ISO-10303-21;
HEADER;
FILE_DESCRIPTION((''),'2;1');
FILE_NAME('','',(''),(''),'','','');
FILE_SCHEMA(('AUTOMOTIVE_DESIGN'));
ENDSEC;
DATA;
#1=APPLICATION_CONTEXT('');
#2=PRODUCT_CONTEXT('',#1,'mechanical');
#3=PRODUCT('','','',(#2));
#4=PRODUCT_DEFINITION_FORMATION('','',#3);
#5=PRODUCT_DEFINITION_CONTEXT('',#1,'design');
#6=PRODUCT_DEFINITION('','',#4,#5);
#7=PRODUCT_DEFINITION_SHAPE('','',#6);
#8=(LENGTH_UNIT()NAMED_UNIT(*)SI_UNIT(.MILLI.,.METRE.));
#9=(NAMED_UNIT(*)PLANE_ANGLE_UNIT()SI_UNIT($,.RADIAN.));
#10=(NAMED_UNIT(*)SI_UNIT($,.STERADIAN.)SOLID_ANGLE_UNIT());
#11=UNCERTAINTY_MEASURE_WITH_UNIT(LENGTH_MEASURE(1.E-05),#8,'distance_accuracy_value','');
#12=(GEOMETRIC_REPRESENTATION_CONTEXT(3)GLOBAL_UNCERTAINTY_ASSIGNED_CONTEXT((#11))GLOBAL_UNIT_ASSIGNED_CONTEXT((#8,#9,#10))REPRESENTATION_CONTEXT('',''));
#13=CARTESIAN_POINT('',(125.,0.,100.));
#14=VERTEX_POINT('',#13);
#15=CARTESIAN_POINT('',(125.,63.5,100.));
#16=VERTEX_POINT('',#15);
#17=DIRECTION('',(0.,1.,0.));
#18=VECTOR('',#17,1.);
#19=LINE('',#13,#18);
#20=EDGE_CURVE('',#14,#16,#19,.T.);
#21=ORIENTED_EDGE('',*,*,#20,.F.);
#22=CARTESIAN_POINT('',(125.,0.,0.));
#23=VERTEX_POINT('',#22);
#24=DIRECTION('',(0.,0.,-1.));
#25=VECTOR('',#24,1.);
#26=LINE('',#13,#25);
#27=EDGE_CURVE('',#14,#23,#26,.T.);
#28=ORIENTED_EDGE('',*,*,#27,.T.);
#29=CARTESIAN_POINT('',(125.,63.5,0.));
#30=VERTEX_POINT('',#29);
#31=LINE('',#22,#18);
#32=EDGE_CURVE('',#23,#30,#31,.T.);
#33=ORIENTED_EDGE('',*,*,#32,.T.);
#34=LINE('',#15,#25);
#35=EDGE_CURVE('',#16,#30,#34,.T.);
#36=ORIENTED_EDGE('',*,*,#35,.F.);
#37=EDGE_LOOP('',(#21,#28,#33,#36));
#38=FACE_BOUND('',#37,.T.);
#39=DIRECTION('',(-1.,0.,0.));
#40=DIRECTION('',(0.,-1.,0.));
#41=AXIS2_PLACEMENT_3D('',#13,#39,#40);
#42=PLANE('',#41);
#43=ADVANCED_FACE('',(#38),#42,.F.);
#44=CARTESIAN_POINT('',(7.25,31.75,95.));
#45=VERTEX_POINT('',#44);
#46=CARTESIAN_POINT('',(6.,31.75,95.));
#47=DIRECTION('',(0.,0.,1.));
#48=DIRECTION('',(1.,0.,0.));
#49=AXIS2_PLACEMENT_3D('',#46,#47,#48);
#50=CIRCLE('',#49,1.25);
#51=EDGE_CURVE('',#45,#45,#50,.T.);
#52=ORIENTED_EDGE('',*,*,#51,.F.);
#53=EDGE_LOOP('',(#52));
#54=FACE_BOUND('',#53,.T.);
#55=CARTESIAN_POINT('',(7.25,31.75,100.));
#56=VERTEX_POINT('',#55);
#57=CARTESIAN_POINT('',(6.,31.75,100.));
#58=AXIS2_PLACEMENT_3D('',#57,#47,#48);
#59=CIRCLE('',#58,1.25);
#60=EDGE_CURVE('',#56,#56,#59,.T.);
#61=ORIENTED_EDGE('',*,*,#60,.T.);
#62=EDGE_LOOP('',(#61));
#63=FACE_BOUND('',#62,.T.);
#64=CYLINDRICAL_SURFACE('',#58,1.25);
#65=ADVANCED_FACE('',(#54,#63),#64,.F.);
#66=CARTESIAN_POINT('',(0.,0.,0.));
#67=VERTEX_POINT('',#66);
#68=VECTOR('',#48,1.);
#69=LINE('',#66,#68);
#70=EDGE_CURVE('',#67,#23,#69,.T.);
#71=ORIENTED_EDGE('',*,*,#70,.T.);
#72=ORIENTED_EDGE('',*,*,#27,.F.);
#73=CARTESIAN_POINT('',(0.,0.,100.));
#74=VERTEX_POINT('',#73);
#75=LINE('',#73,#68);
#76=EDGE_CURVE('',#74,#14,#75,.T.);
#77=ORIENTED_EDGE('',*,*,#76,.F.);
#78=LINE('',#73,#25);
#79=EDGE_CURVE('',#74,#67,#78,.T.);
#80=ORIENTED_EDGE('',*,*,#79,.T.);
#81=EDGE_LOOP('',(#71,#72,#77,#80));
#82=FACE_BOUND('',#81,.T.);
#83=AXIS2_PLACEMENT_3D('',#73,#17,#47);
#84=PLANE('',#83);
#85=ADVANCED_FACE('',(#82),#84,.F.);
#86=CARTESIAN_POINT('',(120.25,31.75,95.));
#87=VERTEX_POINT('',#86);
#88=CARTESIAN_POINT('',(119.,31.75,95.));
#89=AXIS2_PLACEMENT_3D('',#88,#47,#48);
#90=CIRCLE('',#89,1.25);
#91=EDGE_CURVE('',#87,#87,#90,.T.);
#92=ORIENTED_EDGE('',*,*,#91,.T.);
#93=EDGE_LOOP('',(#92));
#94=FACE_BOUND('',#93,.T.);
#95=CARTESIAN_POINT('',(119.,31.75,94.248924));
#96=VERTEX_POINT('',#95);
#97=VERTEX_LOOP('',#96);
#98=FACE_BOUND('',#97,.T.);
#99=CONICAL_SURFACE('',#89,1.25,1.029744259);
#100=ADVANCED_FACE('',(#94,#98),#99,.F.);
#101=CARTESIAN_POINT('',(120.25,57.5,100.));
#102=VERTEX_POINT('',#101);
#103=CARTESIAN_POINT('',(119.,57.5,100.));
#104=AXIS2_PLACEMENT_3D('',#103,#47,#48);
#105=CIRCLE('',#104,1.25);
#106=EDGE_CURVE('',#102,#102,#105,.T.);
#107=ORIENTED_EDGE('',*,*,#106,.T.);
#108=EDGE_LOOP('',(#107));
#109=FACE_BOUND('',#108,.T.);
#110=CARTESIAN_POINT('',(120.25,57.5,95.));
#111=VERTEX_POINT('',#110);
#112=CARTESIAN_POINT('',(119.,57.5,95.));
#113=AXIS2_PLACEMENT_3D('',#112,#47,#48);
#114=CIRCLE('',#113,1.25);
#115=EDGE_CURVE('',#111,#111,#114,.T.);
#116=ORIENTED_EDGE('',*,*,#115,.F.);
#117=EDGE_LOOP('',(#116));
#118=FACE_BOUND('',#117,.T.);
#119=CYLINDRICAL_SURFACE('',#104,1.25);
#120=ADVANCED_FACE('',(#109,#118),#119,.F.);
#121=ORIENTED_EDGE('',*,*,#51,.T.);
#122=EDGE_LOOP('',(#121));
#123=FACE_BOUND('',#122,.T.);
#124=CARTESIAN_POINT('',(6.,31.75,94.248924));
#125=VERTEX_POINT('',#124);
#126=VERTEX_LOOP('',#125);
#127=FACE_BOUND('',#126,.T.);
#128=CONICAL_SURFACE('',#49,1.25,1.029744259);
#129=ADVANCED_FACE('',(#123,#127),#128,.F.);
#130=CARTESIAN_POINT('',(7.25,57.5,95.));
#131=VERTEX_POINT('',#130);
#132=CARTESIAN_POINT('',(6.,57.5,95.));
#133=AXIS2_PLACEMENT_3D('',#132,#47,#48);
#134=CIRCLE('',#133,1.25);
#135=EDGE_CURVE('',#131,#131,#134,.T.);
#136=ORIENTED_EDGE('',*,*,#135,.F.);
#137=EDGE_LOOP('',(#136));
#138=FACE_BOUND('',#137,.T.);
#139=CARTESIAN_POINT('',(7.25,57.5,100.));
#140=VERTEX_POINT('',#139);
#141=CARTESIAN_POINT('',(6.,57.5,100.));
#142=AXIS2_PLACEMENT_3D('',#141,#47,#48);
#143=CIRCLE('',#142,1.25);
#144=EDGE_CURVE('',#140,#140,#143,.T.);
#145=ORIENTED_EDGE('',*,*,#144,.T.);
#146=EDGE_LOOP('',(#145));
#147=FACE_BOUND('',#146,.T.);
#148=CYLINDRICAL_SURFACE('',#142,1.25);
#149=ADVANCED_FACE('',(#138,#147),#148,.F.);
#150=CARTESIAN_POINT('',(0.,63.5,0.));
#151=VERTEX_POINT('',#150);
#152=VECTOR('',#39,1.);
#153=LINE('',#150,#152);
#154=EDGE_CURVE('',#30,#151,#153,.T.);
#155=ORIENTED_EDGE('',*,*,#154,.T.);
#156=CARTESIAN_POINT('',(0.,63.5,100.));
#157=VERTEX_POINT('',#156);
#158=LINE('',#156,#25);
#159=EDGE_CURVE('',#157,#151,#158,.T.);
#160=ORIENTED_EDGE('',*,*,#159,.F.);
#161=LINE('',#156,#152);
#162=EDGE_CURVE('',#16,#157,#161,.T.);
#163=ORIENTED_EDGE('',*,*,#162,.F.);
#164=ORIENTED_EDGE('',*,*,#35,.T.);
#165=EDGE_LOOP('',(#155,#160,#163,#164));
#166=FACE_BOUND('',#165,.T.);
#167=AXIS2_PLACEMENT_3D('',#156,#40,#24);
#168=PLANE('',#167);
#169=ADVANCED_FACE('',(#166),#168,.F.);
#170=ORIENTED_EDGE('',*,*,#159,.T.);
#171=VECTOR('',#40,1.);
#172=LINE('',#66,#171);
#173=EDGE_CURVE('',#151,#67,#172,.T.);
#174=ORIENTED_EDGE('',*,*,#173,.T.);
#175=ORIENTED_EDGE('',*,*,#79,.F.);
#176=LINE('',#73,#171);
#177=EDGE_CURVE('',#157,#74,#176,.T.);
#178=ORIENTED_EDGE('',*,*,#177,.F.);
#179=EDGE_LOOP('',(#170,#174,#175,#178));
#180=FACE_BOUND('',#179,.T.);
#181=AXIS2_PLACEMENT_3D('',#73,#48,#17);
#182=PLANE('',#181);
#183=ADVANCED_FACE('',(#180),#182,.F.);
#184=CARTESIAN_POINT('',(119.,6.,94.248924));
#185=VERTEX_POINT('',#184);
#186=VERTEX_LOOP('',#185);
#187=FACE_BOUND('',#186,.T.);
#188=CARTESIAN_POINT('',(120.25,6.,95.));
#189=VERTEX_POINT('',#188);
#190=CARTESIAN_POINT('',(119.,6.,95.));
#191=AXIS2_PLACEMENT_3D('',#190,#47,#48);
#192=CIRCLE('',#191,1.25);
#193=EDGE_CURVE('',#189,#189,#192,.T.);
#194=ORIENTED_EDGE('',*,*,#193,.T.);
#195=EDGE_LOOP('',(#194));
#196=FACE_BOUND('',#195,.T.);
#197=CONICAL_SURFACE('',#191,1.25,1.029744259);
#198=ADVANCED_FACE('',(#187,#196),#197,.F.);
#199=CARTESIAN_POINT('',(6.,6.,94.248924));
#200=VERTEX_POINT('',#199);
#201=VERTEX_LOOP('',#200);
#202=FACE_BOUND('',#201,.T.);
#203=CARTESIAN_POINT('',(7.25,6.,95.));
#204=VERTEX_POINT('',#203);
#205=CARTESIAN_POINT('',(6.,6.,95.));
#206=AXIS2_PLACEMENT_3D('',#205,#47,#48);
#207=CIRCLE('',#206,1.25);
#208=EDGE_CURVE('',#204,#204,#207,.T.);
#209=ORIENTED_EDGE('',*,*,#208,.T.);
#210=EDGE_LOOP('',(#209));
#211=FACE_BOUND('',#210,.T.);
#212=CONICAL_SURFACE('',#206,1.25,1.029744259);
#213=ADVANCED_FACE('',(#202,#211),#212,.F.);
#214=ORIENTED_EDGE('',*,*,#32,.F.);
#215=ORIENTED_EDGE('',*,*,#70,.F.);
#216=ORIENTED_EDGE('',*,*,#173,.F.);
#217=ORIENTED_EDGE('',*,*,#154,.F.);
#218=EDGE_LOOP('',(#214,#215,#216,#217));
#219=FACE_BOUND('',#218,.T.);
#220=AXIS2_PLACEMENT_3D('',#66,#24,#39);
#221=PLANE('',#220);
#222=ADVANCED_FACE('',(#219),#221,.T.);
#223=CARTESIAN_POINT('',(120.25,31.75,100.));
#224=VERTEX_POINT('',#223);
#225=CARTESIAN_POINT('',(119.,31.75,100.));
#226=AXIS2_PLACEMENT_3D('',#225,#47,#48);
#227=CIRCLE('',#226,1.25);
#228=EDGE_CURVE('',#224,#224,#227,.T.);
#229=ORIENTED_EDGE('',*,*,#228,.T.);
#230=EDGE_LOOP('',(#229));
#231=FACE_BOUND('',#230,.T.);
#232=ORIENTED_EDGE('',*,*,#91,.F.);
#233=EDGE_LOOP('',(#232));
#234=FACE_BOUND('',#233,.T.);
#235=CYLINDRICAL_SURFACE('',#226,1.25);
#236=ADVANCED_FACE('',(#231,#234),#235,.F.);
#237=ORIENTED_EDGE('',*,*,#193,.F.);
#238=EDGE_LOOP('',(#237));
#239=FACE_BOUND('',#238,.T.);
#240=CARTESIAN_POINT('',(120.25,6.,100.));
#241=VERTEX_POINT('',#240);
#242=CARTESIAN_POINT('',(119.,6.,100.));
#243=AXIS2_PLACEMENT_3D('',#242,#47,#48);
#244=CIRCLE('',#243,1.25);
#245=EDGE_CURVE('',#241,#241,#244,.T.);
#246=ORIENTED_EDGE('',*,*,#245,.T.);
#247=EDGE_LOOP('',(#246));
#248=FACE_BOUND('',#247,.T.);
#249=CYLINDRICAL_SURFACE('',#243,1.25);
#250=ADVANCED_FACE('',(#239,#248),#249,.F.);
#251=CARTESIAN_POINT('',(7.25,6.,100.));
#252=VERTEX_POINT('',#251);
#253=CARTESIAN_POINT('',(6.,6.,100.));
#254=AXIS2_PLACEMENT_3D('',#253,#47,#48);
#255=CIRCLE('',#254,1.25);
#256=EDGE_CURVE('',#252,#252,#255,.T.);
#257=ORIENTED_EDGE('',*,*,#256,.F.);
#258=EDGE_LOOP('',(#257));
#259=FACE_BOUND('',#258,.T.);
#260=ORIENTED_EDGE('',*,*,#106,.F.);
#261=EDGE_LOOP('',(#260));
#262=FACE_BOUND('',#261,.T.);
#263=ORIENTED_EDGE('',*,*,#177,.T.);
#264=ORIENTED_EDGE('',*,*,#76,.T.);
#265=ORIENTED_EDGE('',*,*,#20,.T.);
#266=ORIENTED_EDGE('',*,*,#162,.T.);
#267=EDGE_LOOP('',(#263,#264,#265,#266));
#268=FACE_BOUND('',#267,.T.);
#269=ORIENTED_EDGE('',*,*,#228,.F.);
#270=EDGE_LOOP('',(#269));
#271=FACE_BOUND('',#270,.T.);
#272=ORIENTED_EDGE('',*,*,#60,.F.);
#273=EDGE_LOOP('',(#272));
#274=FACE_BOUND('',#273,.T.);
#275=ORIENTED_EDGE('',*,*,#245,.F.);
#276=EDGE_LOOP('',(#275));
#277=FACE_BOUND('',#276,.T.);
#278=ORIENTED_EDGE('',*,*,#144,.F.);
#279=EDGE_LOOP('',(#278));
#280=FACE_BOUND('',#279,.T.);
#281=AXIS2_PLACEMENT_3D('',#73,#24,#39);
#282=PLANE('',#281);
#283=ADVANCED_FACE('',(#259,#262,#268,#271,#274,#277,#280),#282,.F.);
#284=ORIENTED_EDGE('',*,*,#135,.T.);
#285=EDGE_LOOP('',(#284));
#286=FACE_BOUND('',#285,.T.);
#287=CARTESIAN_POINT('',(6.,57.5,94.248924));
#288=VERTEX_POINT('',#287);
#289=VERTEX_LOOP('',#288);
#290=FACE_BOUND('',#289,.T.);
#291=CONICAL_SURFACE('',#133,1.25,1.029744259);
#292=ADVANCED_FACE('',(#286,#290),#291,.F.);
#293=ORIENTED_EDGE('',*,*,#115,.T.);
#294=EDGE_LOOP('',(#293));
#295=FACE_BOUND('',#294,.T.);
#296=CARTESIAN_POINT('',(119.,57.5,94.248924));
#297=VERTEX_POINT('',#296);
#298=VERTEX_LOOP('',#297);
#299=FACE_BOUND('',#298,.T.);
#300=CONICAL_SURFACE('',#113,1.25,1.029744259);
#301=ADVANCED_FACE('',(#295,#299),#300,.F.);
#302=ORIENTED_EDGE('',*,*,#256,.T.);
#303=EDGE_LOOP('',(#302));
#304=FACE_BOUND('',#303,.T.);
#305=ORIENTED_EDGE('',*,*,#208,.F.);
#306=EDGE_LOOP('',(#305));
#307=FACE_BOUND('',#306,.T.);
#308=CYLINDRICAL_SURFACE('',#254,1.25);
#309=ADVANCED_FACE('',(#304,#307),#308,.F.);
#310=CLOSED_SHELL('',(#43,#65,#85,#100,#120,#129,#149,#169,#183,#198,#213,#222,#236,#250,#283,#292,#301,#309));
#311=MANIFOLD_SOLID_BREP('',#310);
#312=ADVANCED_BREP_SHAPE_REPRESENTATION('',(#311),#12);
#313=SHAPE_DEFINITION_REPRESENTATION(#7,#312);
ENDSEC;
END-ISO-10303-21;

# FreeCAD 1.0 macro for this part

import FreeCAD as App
import Part
import Sketcher

V = App.Vector
Q = App.Units.Quantity


def add_polygon(sketch, points):
    """Adds a closed chain of lines whose ends are joined by coincident constraints."""
    first, n = sketch.GeometryCount, len(points)
    for a, b in zip(points, points[1:] + points[:1]):
        sketch.addGeometry(Part.LineSegment(App.Vector(*a, 0), App.Vector(*b, 0)), False)
    for i in range(n):
        sketch.addConstraint(Sketcher.Constraint("Coincident", first + i, 2, first + (i + 1) % n, 1))

doc = App.newDocument("Part")
params = doc.addObject("Spreadsheet::Sheet", "Params")
for row, (alias, value) in enumerate([
    ("sketch1_width", "125 mm"),
    ("sketch1_height", "63.5 mm"),
    ("pad1_length", "100 mm"),
    ("sketch2_diameter", "2.5 mm"),
    ("hole_diameter", "2.5 mm"),
    ("hole_depth", "5 mm"),
], start=1):
    params.set(f"A{row}", alias)
    params.set(f"B{row}", "=" + value)
    params.setAlias(f"B{row}", alias)

body = doc.addObject("PartDesign::Body", "Body")

# Sketch on XY plane
sketch1 = body.newObject("Sketcher::SketchObject", "Sketch")
sketch1.AttachmentSupport = (doc.getObject("XY_Plane"), [""])
sketch1.MapMode = "FlatFace"
add_polygon(sketch1, [(0, 64), (0, 0), (125, 0), (125, 64)])  # lines 0-3
sketch1.addConstraint([
    Sketcher.Constraint("Vertical", 0),
    Sketcher.Constraint("Horizontal", 1),
    Sketcher.Constraint("Vertical", 2),
    Sketcher.Constraint("Horizontal", 3),
    Sketcher.Constraint("Coincident", 0, 2, -1, 1),
    Sketcher.Constraint("DistanceX", 1, 1, 1, 2, Q("125 mm")),
    Sketcher.Constraint("DistanceY", 0, 2, 0, 1, Q("63.5 mm")),
])
sketch1.setExpression("Constraints[9]", "Params.sketch1_width")
sketch1.setExpression("Constraints[10]", "Params.sketch1_height")
pad1 = body.newObject("PartDesign::Pad", "Pad")
pad1.Profile = sketch1
pad1.setExpression("Length", "Params.pad1_length")

# Sketch on XY plane
sketch2 = body.newObject("Sketcher::SketchObject", "Sketch001")
sketch2.AttachmentSupport = (doc.getObject("XY_Plane"), [""])
sketch2.MapMode = "FlatFace"
sketch2.AttachmentOffset = App.Placement(V(0, 0, 100), App.Rotation())
sketch2.addGeometry([
    Part.Circle(V(6, 57.5, 0), V(0, 0, 1), 1.2),  # 0
    Part.Circle(V(119, 57.5, 0), V(0, 0, 1), 1.2),  # 1
    Part.Circle(V(119, 6, 0), V(0, 0, 1), 1.2),  # 2
    Part.Circle(V(6, 6, 0), V(0, 0, 1), 1.2),  # 3
    Part.Circle(V(119, 31.8, 0), V(0, 0, 1), 1.2),  # 4
    Part.Circle(V(6, 31.8, 0), V(0, 0, 1), 1.2),  # 5
], False)
sketch2.addConstraint([
    Sketcher.Constraint("Equal", 0, 1),
    Sketcher.Constraint("Equal", 1, 2),
    Sketcher.Constraint("Equal", 2, 3),
    Sketcher.Constraint("Equal", 3, 4),
    Sketcher.Constraint("Equal", 4, 5),
    Sketcher.Constraint("Horizontal", 0, 3, 1, 3),
    Sketcher.Constraint("Horizontal", 2, 3, 3, 3),
    Sketcher.Constraint("Horizontal", 4, 3, 5, 3),
    Sketcher.Constraint("Vertical", 1, 3, 2, 3),
    Sketcher.Constraint("Vertical", 0, 3, 3, 3),
    Sketcher.Constraint("Vertical", 2, 3, 4, 3),
    Sketcher.Constraint("Vertical", 3, 3, 5, 3),
    Sketcher.Constraint("Diameter", 0, Q("2.5 mm")),
    Sketcher.Constraint("DistanceX", -1, 1, 0, 3, Q("6 mm")),
    Sketcher.Constraint("DistanceX", -1, 1, 1, 3, Q("119 mm")),
    Sketcher.Constraint("DistanceY", -1, 1, 2, 3, Q("6 mm")),
    Sketcher.Constraint("DistanceY", -1, 1, 0, 3, Q("57.5 mm")),
    Sketcher.Constraint("DistanceY", -1, 1, 4, 3, Q("31.75 mm")),
])
sketch2.setExpression("Constraints[12]", "Params.sketch2_diameter")
doc.recompute()
hole = body.newObject("PartDesign::Hole", "Hole")
hole.Profile = sketch2
hole.ThreadType = "None"
hole.setExpression("Diameter", "Params.hole_diameter")
hole.DepthType = "Dimension"
hole.setExpression("Depth", "Params.hole_depth")
hole.DrillPoint = "Angled"
hole.DrillPointAngle = 118

doc.recompute()
